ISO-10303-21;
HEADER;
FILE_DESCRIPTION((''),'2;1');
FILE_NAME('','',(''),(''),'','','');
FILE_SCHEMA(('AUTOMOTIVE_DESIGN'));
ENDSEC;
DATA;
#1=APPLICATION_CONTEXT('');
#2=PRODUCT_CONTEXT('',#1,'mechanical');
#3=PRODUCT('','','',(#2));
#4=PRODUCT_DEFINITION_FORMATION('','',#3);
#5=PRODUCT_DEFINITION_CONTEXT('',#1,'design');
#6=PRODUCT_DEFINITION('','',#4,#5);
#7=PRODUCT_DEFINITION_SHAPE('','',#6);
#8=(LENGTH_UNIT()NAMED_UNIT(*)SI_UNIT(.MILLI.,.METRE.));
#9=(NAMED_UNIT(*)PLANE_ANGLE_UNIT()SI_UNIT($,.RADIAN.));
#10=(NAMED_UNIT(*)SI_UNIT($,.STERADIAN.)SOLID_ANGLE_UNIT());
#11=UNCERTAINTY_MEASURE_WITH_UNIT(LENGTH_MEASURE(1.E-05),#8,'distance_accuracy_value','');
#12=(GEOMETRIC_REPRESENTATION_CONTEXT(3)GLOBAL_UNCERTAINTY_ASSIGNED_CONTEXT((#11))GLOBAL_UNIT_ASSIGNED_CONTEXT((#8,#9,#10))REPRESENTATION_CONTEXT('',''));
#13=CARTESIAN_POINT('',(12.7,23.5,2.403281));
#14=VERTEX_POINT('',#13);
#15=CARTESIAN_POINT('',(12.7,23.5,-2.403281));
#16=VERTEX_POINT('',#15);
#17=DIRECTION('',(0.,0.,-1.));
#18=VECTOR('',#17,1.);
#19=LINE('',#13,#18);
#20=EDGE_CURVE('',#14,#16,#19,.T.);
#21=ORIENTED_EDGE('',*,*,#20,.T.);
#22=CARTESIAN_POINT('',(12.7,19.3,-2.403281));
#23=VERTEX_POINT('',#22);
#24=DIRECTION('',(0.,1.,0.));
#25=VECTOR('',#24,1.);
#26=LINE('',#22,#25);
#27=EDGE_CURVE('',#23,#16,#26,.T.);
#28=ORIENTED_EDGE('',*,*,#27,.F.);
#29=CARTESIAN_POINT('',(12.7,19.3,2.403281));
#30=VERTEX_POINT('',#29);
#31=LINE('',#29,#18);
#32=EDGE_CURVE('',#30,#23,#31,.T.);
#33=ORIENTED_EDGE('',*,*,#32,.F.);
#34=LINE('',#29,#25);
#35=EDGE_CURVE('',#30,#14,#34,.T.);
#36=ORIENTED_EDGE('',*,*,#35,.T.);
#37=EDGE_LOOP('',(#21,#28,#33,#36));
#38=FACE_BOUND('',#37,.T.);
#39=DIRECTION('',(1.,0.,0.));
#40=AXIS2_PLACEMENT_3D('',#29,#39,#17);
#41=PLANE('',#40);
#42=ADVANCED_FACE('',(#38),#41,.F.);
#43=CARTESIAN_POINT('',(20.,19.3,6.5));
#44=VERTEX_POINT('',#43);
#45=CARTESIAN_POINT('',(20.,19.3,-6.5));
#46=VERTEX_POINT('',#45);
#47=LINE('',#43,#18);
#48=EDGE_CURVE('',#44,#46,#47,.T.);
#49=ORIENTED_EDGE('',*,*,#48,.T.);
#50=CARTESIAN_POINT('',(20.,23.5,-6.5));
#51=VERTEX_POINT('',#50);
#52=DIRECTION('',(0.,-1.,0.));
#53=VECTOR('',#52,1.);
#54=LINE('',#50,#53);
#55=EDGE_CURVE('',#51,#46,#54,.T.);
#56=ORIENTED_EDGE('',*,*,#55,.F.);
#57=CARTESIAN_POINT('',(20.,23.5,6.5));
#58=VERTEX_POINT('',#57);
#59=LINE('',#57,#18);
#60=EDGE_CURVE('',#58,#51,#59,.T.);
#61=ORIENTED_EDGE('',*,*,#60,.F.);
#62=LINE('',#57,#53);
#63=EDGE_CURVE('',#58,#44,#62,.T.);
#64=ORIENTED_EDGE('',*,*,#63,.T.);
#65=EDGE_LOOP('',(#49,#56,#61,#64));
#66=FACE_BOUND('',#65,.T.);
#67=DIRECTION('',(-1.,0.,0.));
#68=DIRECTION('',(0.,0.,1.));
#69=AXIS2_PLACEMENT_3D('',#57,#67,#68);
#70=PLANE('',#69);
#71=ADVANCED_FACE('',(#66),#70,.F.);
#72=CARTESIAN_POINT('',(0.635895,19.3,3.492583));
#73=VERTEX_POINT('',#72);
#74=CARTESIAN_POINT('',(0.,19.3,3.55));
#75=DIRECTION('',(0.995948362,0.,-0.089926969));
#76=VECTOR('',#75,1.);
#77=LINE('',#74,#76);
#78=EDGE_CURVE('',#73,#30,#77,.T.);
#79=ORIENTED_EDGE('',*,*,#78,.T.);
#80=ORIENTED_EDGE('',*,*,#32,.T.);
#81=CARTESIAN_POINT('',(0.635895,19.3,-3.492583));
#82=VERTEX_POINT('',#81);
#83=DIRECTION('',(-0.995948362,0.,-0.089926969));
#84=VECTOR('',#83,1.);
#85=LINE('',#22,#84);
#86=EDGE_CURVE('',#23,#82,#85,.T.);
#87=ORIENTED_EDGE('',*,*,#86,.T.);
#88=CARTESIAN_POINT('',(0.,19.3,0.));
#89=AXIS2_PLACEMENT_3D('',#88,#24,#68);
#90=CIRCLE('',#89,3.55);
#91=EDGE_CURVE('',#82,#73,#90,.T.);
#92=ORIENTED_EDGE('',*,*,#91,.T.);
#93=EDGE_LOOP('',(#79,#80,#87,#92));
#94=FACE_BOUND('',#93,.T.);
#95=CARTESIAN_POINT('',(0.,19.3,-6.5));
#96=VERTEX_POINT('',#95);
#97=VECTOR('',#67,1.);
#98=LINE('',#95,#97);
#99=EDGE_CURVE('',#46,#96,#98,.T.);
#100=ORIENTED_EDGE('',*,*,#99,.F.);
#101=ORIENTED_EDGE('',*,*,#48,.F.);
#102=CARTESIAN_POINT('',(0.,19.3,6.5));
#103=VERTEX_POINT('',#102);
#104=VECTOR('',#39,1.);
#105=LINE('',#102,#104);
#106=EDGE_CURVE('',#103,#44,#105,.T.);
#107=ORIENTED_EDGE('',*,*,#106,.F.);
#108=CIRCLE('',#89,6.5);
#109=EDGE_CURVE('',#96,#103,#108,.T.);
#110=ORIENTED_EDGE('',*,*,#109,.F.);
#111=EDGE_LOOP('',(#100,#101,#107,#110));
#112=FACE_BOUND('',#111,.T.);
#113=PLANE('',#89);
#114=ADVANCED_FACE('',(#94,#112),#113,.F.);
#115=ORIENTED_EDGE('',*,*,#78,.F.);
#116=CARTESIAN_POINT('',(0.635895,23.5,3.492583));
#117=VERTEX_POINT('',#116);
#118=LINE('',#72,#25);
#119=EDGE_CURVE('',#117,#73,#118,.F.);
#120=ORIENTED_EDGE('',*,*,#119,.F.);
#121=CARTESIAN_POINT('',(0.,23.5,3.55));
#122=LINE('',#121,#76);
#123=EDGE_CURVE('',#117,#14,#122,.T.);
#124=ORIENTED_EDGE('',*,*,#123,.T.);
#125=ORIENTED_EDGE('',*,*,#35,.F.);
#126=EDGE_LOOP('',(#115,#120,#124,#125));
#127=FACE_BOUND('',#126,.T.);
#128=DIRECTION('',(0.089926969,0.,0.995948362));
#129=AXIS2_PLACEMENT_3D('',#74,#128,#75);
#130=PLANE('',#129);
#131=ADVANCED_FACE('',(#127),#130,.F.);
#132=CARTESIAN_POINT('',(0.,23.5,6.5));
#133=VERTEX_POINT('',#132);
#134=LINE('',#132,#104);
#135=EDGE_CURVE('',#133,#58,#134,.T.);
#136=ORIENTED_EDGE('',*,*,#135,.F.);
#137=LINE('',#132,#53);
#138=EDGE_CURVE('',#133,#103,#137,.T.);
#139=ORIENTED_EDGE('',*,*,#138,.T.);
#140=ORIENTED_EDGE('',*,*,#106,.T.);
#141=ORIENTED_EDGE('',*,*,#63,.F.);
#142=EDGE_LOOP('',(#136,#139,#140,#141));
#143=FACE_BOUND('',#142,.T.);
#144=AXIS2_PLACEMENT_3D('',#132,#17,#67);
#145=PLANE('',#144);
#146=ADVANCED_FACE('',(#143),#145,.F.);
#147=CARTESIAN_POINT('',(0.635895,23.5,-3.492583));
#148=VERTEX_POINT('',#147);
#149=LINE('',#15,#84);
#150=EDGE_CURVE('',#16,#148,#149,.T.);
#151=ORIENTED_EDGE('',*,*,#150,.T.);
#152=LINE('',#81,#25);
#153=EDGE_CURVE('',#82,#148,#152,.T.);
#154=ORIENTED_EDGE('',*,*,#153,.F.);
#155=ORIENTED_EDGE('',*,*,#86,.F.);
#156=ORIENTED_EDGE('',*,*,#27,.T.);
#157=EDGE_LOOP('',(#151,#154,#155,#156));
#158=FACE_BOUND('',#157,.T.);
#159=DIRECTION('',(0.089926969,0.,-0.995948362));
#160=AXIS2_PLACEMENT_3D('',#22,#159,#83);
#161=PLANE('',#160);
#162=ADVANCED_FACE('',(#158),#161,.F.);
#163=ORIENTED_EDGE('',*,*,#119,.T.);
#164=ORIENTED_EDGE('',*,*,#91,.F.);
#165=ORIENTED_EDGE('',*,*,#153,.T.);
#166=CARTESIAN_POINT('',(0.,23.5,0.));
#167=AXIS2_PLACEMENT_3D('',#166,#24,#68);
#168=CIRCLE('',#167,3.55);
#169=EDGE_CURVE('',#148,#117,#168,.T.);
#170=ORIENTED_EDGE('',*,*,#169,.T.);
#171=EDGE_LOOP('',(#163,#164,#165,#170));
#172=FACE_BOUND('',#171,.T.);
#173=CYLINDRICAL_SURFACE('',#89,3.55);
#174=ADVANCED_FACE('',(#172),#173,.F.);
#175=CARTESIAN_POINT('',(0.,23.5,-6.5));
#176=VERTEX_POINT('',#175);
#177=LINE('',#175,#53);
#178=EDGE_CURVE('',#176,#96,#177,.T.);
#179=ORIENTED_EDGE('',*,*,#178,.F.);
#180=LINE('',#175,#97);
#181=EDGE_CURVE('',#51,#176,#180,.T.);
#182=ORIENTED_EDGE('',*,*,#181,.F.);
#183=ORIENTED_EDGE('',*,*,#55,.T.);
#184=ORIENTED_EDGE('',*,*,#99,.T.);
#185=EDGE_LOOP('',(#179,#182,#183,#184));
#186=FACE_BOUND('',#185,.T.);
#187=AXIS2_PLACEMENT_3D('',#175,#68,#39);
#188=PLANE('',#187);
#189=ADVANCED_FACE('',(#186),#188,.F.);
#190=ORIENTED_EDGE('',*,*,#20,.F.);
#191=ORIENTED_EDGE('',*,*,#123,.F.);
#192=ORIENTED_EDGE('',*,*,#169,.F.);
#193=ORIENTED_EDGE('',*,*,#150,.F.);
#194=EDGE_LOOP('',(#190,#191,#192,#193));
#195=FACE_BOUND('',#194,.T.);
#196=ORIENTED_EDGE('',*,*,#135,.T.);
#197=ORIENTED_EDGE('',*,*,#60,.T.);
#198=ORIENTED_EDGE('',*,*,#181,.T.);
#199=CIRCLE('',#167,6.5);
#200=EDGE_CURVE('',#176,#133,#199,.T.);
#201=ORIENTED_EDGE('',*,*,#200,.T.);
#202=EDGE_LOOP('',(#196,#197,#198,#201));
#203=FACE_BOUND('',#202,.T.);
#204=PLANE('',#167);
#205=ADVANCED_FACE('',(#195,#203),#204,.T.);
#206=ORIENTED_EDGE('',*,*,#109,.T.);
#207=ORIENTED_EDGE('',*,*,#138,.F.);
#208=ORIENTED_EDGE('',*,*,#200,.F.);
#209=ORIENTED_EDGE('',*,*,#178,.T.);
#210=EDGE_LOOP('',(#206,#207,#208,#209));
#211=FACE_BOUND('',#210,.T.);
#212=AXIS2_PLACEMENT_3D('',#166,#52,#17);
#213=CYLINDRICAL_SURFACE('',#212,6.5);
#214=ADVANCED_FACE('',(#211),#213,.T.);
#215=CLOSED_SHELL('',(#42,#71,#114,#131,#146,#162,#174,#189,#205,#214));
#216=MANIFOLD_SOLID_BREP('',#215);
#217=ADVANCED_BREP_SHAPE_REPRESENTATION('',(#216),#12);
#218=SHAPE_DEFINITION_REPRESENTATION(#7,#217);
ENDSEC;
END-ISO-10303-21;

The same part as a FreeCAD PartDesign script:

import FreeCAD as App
import Part
import Sketcher
Q = App.Units.Quantity


def add_polygon(sketch, points):
    """Adds a closed chain of lines whose ends are joined by coincident constraints."""
    first, n = sketch.GeometryCount, len(points)
    for a, b in zip(points, points[1:] + points[:1]):
        sketch.addGeometry(Part.LineSegment(App.Vector(*a, 0), App.Vector(*b, 0)), False)
    for i in range(n):
        sketch.addConstraint(Sketcher.Constraint("Coincident", first + i, 2, first + (i + 1) % n, 1))

doc = App.newDocument("Part")
body = doc.addObject("PartDesign::Body", "Body")

sketch1 = body.newObject("Sketcher::SketchObject", "Sketch")
sketch1.AttachmentSupport = (doc.getObject("XZ_Plane"), [""])
sketch1.MapMode = "FlatFace"
sketch1.AttachmentOffset = App.Placement(App.Vector(0, 0, -21.4), App.Rotation())
sketch1.addGeometry(Part.Circle(App.Vector(0, 0, 0), App.Vector(0, 0, 1), 6.5), False)
sketch1.addConstraint([
    Sketcher.Constraint("Coincident", 0, 3, -1, 1),
    Sketcher.Constraint("Diameter", 0, Q("13 mm")),
])
pad1 = body.newObject("PartDesign::Pad", "Pad")
pad1.Profile = sketch1
pad1.Length = 4.2
pad1.Midplane = True

sketch2 = body.newObject("Sketcher::SketchObject", "Sketch001")
sketch2.AttachmentSupport = (doc.getObject("XZ_Plane"), [""])
sketch2.MapMode = "FlatFace"
sketch2.AttachmentOffset = App.Placement(App.Vector(0, 0, -21.4), App.Rotation())
add_polygon(sketch2, [(0, -6.5), (0, 6.5), (20, 6.5), (20, -6.5)])
sketch2.addConstraint([
    Sketcher.Constraint("Vertical", 0),
    Sketcher.Constraint("Horizontal", 1),
    Sketcher.Constraint("Vertical", 2),
    Sketcher.Constraint("Horizontal", 3),
    Sketcher.Constraint("Symmetric", 0, 2, 3, 2, -1, 1),
    Sketcher.Constraint("DistanceX", 1, 1, 1, 2, Q("20 mm")),
    Sketcher.Constraint("DistanceY", 0, 1, 0, 2, Q("13 mm")),
])
pad2 = body.newObject("PartDesign::Pad", "Pad001")
pad2.Profile = sketch2
pad2.Length = 4.2
pad2.Midplane = True

sketch3 = body.newObject("Sketcher::SketchObject", "Sketch002")
sketch3.AttachmentSupport = (doc.getObject("XZ_Plane"), [""])
sketch3.MapMode = "FlatFace"
sketch3.AttachmentOffset = App.Placement(App.Vector(0, 0, -21.4), App.Rotation())
sketch3.addGeometry(Part.Circle(App.Vector(0, 0, 0), App.Vector(0, 0, 1), 3.55), False)
sketch3.addConstraint([
    Sketcher.Constraint("Coincident", 0, 3, -1, 1),
    Sketcher.Constraint("Diameter", 0, Q("7.1 mm")),
])
pocket1 = body.newObject("PartDesign::Pocket", "Pocket")
pocket1.Profile = sketch3
pocket1.Length = 4.2
pocket1.Midplane = True

sketch4 = body.newObject("Sketcher::SketchObject", "Sketch003")
sketch4.AttachmentSupport = (doc.getObject("XZ_Plane"), [""])
sketch4.MapMode = "FlatFace"
sketch4.AttachmentOffset = App.Placement(App.Vector(0, 0, -21.4), App.Rotation())
add_polygon(sketch4, [(0, 3.55), (12.7, 2.403281), (12.7, -2.403281), (0, -3.55)])
sketch4.addConstraint([
    Sketcher.Constraint("Vertical", 1),
    Sketcher.Constraint("Vertical", 3),
    Sketcher.Constraint("Symmetric", 2, 2, 3, 2, -1, 1),
    Sketcher.Constraint("Equal", 0, 2),
    Sketcher.Constraint("DistanceY", 3, 1, 3, 2, Q("7.1 mm")),
    Sketcher.Constraint("DistanceX", -1, 1, 0, 2, Q("12.7 mm")),
    Sketcher.Constraint("DistanceY", 1, 2, 1, 1, Q("4.806563 mm")),
])
pocket2 = body.newObject("PartDesign::Pocket", "Pocket001")
pocket2.Profile = sketch4
pocket2.Length = 4.2
pocket2.Midplane = True

doc.recompute()
